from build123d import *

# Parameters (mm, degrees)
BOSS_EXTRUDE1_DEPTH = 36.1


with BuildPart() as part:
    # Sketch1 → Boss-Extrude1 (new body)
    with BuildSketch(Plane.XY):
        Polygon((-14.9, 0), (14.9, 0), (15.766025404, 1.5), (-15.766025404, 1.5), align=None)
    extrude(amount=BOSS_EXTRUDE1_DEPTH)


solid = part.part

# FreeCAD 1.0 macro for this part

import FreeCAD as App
import Part
import Sketcher
from FreeCAD import Vector
Q = App.Units.Quantity

doc = App.newDocument("Part")
params = doc.addObject("Spreadsheet::Sheet", "Params")
for row, (alias, value) in enumerate([
    ("sketch1_width", "29.8 mm"),
    ("pad1_length", "36.1 mm"),
], start=1):
    params.set(f"A{row}", alias)
    params.set(f"B{row}", "=" + value)
    params.setAlias(f"B{row}", alias)

body = doc.addObject("PartDesign::Body", "Body")

# Sketch on XY plane
sketch1 = doc.addObject("Sketcher::SketchObject", "Sketch")
body.addObject(sketch1)
sketch1.AttachmentSupport = (doc.XY_Plane, [""])
sketch1.MapMode = "FlatFace"
sketch1.addGeometry([
    Part.LineSegment(Vector(-14.9, 0, 0), Vector(14.9, 0, 0)),
    Part.LineSegment(Vector(14.9, 0, 0), Vector(15.766025, 1.5, 0)),
    Part.LineSegment(Vector(15.766025, 1.5, 0), Vector(-15.766025, 1.5, 0)),
    Part.LineSegment(Vector(-15.766025, 1.5, 0), Vector(-14.9, 0, 0)),
], False)
sketch1.addConstraint([
    Sketcher.Constraint("Coincident", 0, 2, 1, 1),
    Sketcher.Constraint("Coincident", 1, 2, 2, 1),
    Sketcher.Constraint("Coincident", 2, 2, 3, 1),
    Sketcher.Constraint("Coincident", 3, 2, 0, 1),
    Sketcher.Constraint("Horizontal", 0),
    Sketcher.Constraint("Horizontal", 2),
    Sketcher.Constraint("Symmetric", 0, 2, 3, 2, -1, 1),
    Sketcher.Constraint("Equal", 1, 3),
    Sketcher.Constraint("Angle", 1, Q("60 deg")),
    Sketcher.Constraint("DistanceX", 0, 1, 0, 2, 29.8),
    Sketcher.Constraint("DistanceY", -1, 1, 1, 2, 1.5),
])
sketch1.setExpression("Constraints[9]", "Params.sketch1_width")
pad1 = doc.addObject("PartDesign::Pad", "Pad")
body.addObject(pad1)
pad1.Profile = sketch1
pad1.setExpression("Length", "Params.pad1_length")

doc.recompute()
